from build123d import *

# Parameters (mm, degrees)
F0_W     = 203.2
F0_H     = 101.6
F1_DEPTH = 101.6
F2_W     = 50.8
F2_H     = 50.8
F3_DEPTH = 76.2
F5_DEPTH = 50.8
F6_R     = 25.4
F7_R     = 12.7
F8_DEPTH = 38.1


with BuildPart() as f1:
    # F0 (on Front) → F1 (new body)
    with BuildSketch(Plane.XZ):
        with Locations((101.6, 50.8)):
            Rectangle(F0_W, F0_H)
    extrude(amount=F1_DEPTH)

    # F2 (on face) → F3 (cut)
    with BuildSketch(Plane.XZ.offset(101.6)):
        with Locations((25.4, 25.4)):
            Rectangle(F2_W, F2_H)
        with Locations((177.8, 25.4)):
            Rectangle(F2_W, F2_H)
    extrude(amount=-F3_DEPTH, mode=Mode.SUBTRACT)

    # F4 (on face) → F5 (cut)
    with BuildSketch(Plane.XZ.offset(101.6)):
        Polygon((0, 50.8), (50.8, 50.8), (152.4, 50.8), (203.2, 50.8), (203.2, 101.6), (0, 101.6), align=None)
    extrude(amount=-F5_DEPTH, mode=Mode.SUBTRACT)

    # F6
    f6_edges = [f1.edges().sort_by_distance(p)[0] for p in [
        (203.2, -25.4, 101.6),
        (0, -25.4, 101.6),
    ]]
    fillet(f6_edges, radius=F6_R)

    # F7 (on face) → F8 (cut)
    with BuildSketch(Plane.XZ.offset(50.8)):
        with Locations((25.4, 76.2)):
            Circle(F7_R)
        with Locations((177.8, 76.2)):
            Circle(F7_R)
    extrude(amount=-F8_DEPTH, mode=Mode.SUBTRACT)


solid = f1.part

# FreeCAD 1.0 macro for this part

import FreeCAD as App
import Part
import Sketcher
Q = App.Units.Quantity


def edges_at(feature, points):
    """Names of the edges that pass closest to the given points."""
    edges = feature.Shape.Edges
    near = lambda p: min(range(len(edges)), key=lambda i: edges[i].distToShape(Part.Vertex(*p))[0])
    return sorted({f"Edge{near(p) + 1}" for p in points})

doc = App.newDocument("Part")
params = doc.addObject("Spreadsheet::Sheet", "Params")
for row, (alias, value) in enumerate([
    ("sketch1_width", "8 in"),
    ("sketch1_height", "4 in"),
    ("pad1_length", "4 in"),
    ("sketch2_width", "2 in"),
    ("pocket1_length", "3 in"),
    ("sketch3_width", "8 in"),
    ("sketch3_height", "2 in"),
    ("pocket2_length", "2 in"),
    ("fillet_radius", "1 in"),
    ("sketch4_diameter", "1 in"),
    ("pocket3_length", "1.5 in"),
], start=1):
    params.set(f"A{row}", alias)
    params.set(f"B{row}", "=" + value)
    params.setAlias(f"B{row}", alias)

body = doc.addObject("PartDesign::Body", "Body")

sketch1 = doc.addObject("Sketcher::SketchObject", "Sketch")
body.addObject(sketch1)
sketch1.AttachmentSupport = (doc.XZ_Plane, [""])
sketch1.MapMode = "FlatFace"
sketch1.addGeometry([
    Part.LineSegment(App.Vector(0, 102, 0), App.Vector(0, 0, 0)),
    Part.LineSegment(App.Vector(0, 0, 0), App.Vector(203, 0, 0)),
    Part.LineSegment(App.Vector(203, 0, 0), App.Vector(203, 102, 0)),
    Part.LineSegment(App.Vector(203, 102, 0), App.Vector(0, 102, 0)),
], False)
sketch1.addConstraint([
    Sketcher.Constraint("Coincident", 0, 2, 1, 1),
    Sketcher.Constraint("Coincident", 1, 2, 2, 1),
    Sketcher.Constraint("Coincident", 2, 2, 3, 1),
    Sketcher.Constraint("Coincident", 3, 2, 0, 1),
    Sketcher.Constraint("Vertical", 0),
    Sketcher.Constraint("Horizontal", 1),
    Sketcher.Constraint("Vertical", 2),
    Sketcher.Constraint("Horizontal", 3),
    Sketcher.Constraint("Coincident", 0, 2, -1, 1),
    Sketcher.Constraint("DistanceX", 1, 1, 1, 2, Q("8 in")),
    Sketcher.Constraint("DistanceY", 0, 2, 0, 1, Q("4 in")),
])
sketch1.setExpression("Constraints[9]", "Params.sketch1_width")
sketch1.setExpression("Constraints[10]", "Params.sketch1_height")
pad1 = doc.addObject("PartDesign::Pad", "Pad")
body.addObject(pad1)
pad1.Profile = sketch1
pad1.setExpression("Length", "Params.pad1_length")

sketch2 = doc.addObject("Sketcher::SketchObject", "Sketch001")
body.addObject(sketch2)
sketch2.AttachmentSupport = (doc.XZ_Plane, [""])
sketch2.MapMode = "FlatFace"
sketch2.AttachmentOffset = App.Placement(App.Vector(0, 0, 4 * 25.4), App.Rotation())
sketch2.addGeometry([
    Part.LineSegment(App.Vector(0, 51, 0), App.Vector(0, 0, 0)),
    Part.LineSegment(App.Vector(0, 0, 0), App.Vector(51, 0, 0)),
    Part.LineSegment(App.Vector(51, 0, 0), App.Vector(51, 51, 0)),
    Part.LineSegment(App.Vector(51, 51, 0), App.Vector(0, 51, 0)),
    Part.LineSegment(App.Vector(152, 51, 0), App.Vector(152, 0, 0)),
    Part.LineSegment(App.Vector(152, 0, 0), App.Vector(203, 0, 0)),
    Part.LineSegment(App.Vector(203, 0, 0), App.Vector(203, 51, 0)),
    Part.LineSegment(App.Vector(203, 51, 0), App.Vector(152, 51, 0)),
], False)
sketch2.addConstraint([
    Sketcher.Constraint("Coincident", 0, 2, 1, 1),
    Sketcher.Constraint("Coincident", 1, 2, 2, 1),
    Sketcher.Constraint("Coincident", 2, 2, 3, 1),
    Sketcher.Constraint("Coincident", 3, 2, 0, 1),
    Sketcher.Constraint("Coincident", 4, 2, 5, 1),
    Sketcher.Constraint("Coincident", 5, 2, 6, 1),
    Sketcher.Constraint("Coincident", 6, 2, 7, 1),
    Sketcher.Constraint("Coincident", 7, 2, 4, 1),
    Sketcher.Constraint("Vertical", 0),
    Sketcher.Constraint("Horizontal", 1),
    Sketcher.Constraint("Vertical", 2),
    Sketcher.Constraint("Horizontal", 3),
    Sketcher.Constraint("Vertical", 4),
    Sketcher.Constraint("Horizontal", 5),
    Sketcher.Constraint("Vertical", 6),
    Sketcher.Constraint("Horizontal", 7),
    Sketcher.Constraint("Coincident", 0, 2, -1, 1),
    Sketcher.Constraint("PointOnObject", 4, 2, -1),
    Sketcher.Constraint("Horizontal", 3, 2, 6, 2),
    Sketcher.Constraint("Equal", 3, 5),
    Sketcher.Constraint("Equal", 7, 0),
    Sketcher.Constraint("DistanceX", 1, 1, 1, 2, Q("2 in")),
    Sketcher.Constraint("DistanceX", -1, 1, 4, 2, Q("6 in")),
])
sketch2.setExpression("Constraints[21]", "Params.sketch2_width")
pocket1 = doc.addObject("PartDesign::Pocket", "Pocket")
body.addObject(pocket1)
pocket1.Profile = sketch2
pocket1.setExpression("Length", "Params.pocket1_length")

sketch3 = doc.addObject("Sketcher::SketchObject", "Sketch002")
body.addObject(sketch3)
sketch3.AttachmentSupport = (doc.XZ_Plane, [""])
sketch3.MapMode = "FlatFace"
sketch3.AttachmentOffset = App.Placement(App.Vector(0, 0, 4 * 25.4), App.Rotation())
sketch3.addGeometry([
    Part.LineSegment(App.Vector(0, 51, 0), App.Vector(203, 51, 0)),
    Part.LineSegment(App.Vector(203, 51, 0), App.Vector(203, 102, 0)),
    Part.LineSegment(App.Vector(203, 102, 0), App.Vector(0, 102, 0)),
    Part.LineSegment(App.Vector(0, 102, 0), App.Vector(0, 51, 0)),
], False)
sketch3.addConstraint([
    Sketcher.Constraint("Coincident", 0, 2, 1, 1),
    Sketcher.Constraint("Coincident", 1, 2, 2, 1),
    Sketcher.Constraint("Coincident", 2, 2, 3, 1),
    Sketcher.Constraint("Coincident", 3, 2, 0, 1),
    Sketcher.Constraint("Horizontal", 0),
    Sketcher.Constraint("Vertical", 1),
    Sketcher.Constraint("Horizontal", 2),
    Sketcher.Constraint("Vertical", 3),
    Sketcher.Constraint("PointOnObject", 2, 2, -2),
    Sketcher.Constraint("DistanceX", 0, 1, 0, 2, Q("8 in")),
    Sketcher.Constraint("DistanceY", 1, 1, 1, 2, Q("2 in")),
    Sketcher.Constraint("DistanceY", -1, 1, 0, 2, Q("2 in")),
])
sketch3.setExpression("Constraints[9]", "Params.sketch3_width")
sketch3.setExpression("Constraints[10]", "Params.sketch3_height")
pocket2 = doc.addObject("PartDesign::Pocket", "Pocket001")
body.addObject(pocket2)
pocket2.Profile = sketch3
pocket2.setExpression("Length", "Params.pocket2_length")
doc.recompute()

fillet = doc.addObject("PartDesign::Fillet", "Fillet")
body.addObject(fillet)
fillet.Base = (pocket2, edges_at(pocket2, [(203.2, -25.4, 101.6), (0, -25.4, 101.6)]))
fillet.setExpression("Radius", "Params.fillet_radius")

sketch4 = doc.addObject("Sketcher::SketchObject", "Sketch003")
body.addObject(sketch4)
sketch4.AttachmentSupport = (doc.XZ_Plane, [""])
sketch4.MapMode = "FlatFace"
sketch4.AttachmentOffset = App.Placement(App.Vector(0, 0, 2 * 25.4), App.Rotation())
sketch4.addGeometry([
    Part.Circle(App.Vector(25, 76, 0), App.Vector(0, 0, 1), 13),
    Part.Circle(App.Vector(178, 76, 0), App.Vector(0, 0, 1), 13),
], False)
sketch4.addConstraint([
    Sketcher.Constraint("Equal", 0, 1),
    Sketcher.Constraint("Horizontal", 0, 3, 1, 3),
    Sketcher.Constraint("Diameter", 0, Q("1 in")),
    Sketcher.Constraint("DistanceX", -1, 1, 0, 3, Q("1 in")),
    Sketcher.Constraint("DistanceY", -1, 1, 0, 3, Q("3 in")),
    Sketcher.Constraint("DistanceX", -1, 1, 1, 3, Q("7 in")),
])
sketch4.setExpression("Constraints[2]", "Params.sketch4_diameter")
pocket3 = doc.addObject("PartDesign::Pocket", "Pocket002")
body.addObject(pocket3)
pocket3.Profile = sketch4
pocket3.setExpression("Length", "Params.pocket3_length")

doc.recompute()
